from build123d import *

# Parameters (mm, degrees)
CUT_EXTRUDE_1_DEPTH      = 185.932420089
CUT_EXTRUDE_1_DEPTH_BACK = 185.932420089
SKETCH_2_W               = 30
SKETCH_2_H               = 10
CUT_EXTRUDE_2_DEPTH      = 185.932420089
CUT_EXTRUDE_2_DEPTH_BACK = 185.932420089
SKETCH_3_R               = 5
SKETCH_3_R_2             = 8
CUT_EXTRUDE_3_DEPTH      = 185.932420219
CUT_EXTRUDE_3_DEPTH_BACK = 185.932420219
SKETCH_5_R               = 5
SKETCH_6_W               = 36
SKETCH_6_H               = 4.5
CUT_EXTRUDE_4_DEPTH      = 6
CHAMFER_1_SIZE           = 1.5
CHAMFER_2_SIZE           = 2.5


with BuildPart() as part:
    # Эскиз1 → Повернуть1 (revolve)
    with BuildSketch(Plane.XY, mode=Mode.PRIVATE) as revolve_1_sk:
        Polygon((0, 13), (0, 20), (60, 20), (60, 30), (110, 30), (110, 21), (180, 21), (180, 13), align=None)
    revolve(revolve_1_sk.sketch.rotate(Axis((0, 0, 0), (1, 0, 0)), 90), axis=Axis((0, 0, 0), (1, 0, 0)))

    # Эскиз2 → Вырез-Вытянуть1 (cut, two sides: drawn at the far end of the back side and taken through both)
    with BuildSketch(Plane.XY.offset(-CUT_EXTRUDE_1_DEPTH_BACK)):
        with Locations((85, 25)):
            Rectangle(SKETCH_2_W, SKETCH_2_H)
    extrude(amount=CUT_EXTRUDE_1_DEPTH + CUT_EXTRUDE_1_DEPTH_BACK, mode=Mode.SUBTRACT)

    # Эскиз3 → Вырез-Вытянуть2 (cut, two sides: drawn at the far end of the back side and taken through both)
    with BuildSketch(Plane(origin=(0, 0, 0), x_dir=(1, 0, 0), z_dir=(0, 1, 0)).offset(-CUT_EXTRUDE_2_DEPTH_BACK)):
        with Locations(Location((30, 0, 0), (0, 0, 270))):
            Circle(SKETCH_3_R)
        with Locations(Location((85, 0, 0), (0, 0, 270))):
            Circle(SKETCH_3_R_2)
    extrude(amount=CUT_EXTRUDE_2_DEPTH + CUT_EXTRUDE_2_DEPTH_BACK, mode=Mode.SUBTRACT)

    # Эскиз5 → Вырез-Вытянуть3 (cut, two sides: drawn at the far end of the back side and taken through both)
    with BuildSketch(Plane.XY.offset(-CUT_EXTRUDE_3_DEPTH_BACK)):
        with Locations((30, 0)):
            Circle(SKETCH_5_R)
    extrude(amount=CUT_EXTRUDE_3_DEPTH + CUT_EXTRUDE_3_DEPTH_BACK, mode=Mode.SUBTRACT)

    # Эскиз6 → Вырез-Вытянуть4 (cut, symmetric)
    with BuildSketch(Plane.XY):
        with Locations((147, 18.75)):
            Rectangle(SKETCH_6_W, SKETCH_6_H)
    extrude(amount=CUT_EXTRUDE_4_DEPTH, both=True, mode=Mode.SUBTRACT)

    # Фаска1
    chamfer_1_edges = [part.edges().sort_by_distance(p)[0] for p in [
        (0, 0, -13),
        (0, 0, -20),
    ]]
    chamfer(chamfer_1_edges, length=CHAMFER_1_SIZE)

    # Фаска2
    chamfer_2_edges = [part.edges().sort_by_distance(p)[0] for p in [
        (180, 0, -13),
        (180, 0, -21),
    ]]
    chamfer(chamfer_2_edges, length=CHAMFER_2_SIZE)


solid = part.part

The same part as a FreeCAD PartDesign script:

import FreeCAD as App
import Part
import Sketcher


def edges_at(feature, points):
    """Names of the edges that pass closest to the given points."""
    edges = feature.Shape.Edges
    near = lambda p: min(range(len(edges)), key=lambda i: edges[i].distToShape(Part.Vertex(*p))[0])
    return sorted({f"Edge{near(p) + 1}" for p in points})


def add_polygon(sketch, points):
    """Adds a closed chain of lines whose ends are joined by coincident constraints."""
    first, n = sketch.GeometryCount, len(points)
    for a, b in zip(points, points[1:] + points[:1]):
        sketch.addGeometry(Part.LineSegment(App.Vector(*a, 0), App.Vector(*b, 0)), False)
    for i in range(n):
        sketch.addConstraint(Sketcher.Constraint("Coincident", first + i, 2, first + (i + 1) % n, 1))

doc = App.newDocument("Part")
body = doc.addObject("PartDesign::Body", "Body")

sketch1 = doc.addObject("Sketcher::SketchObject", "Sketch")
body.addObject(sketch1)
sketch1.AttachmentSupport = (doc.XY_Plane, [""])
sketch1.MapMode = "FlatFace"
add_polygon(sketch1, [(0, 20), (0, 13), (180, 13), (180, 21), (110, 21), (110, 30), (60, 30), (60, 20)])
sketch1.addConstraint([
    Sketcher.Constraint("Vertical", 0),
    Sketcher.Constraint("Horizontal", 1),
    Sketcher.Constraint("Vertical", 2),
    Sketcher.Constraint("Horizontal", 3),
    Sketcher.Constraint("Vertical", 4),
    Sketcher.Constraint("Horizontal", 5),
    Sketcher.Constraint("Vertical", 6),
    Sketcher.Constraint("Horizontal", 7),
    Sketcher.Constraint("PointOnObject", 0, 2, -2),
    Sketcher.Constraint("DistanceX", 1, 1, 1, 2, 180.0),
    Sketcher.Constraint("DistanceX", 3, 2, 3, 1, 70.0),
    Sketcher.Constraint("DistanceX", 5, 2, 5, 1, 50.0),
    Sketcher.Constraint("DistanceY", 0, 2, 0, 1, 7.0),
    Sketcher.Constraint("DistanceY", 2, 1, 2, 2, 8.0),
    Sketcher.Constraint("DistanceY", 4, 1, 4, 2, 9.0),
    Sketcher.Constraint("DistanceY", -1, 1, 0, 2, 13.0),
])
revolution = doc.addObject("PartDesign::Revolution", "Revolution")
body.addObject(revolution)
revolution.Profile = sketch1
revolution.ReferenceAxis = (sketch1, ["H_Axis"])
revolution.Angle = 360

sketch2 = doc.addObject("Sketcher::SketchObject", "Sketch001")
body.addObject(sketch2)
sketch2.AttachmentSupport = (doc.XY_Plane, [""])
sketch2.MapMode = "FlatFace"
add_polygon(sketch2, [(70, 30), (70, 20), (100, 20), (100, 30)])
sketch2.addConstraint([
    Sketcher.Constraint("Vertical", 0),
    Sketcher.Constraint("Horizontal", 1),
    Sketcher.Constraint("Vertical", 2),
    Sketcher.Constraint("Horizontal", 3),
    Sketcher.Constraint("DistanceX", 1, 1, 1, 2, 30.0),
    Sketcher.Constraint("DistanceY", 0, 2, 0, 1, 10.0),
    Sketcher.Constraint("DistanceX", -1, 1, 0, 2, 70.0),
    Sketcher.Constraint("DistanceY", -1, 1, 0, 2, 20.0),
])
pocket1 = doc.addObject("PartDesign::Pocket", "Pocket")
body.addObject(pocket1)
pocket1.Profile = sketch2
pocket1.Type = "ThroughAll"
pocket1.Midplane = True

sketch3 = doc.addObject("Sketcher::SketchObject", "Sketch002")
body.addObject(sketch3)
sketch3.AttachmentSupport = (doc.XZ_Plane, [""])
sketch3.MapMode = "FlatFace"
sketch3.addGeometry([
    Part.Circle(App.Vector(30, 0, 0), App.Vector(0, 0, 1), 5),
    Part.Circle(App.Vector(85, 0, 0), App.Vector(0, 0, 1), 8),
], False)
sketch3.addConstraint([
    Sketcher.Constraint("PointOnObject", 0, 3, -1),
    Sketcher.Constraint("PointOnObject", 1, 3, -1),
    Sketcher.Constraint("Diameter", 0, 10.0),
    Sketcher.Constraint("Diameter", 1, 16.0),
    Sketcher.Constraint("DistanceX", -1, 1, 0, 3, 30.0),
    Sketcher.Constraint("DistanceX", -1, 1, 1, 3, 85.0),
])
pocket2 = doc.addObject("PartDesign::Pocket", "Pocket001")
body.addObject(pocket2)
pocket2.Profile = sketch3
pocket2.Type = "ThroughAll"
pocket2.Midplane = True

sketch4 = doc.addObject("Sketcher::SketchObject", "Sketch003")
body.addObject(sketch4)
sketch4.AttachmentSupport = (doc.XY_Plane, [""])
sketch4.MapMode = "FlatFace"
sketch4.addGeometry(Part.Circle(App.Vector(30, 0, 0), App.Vector(0, 0, 1), 5), False)
sketch4.addConstraint([
    Sketcher.Constraint("PointOnObject", 0, 3, -1),
    Sketcher.Constraint("Diameter", 0, 10.0),
    Sketcher.Constraint("DistanceX", -1, 1, 0, 3, 30.0),
])
pocket3 = doc.addObject("PartDesign::Pocket", "Pocket002")
body.addObject(pocket3)
pocket3.Profile = sketch4
pocket3.Type = "ThroughAll"
pocket3.Midplane = True

sketch5 = doc.addObject("Sketcher::SketchObject", "Sketch004")
body.addObject(sketch5)
sketch5.AttachmentSupport = (doc.XY_Plane, [""])
sketch5.MapMode = "FlatFace"
add_polygon(sketch5, [(129, 21), (129, 16.5), (165, 16.5), (165, 21)])
sketch5.addConstraint([
    Sketcher.Constraint("Vertical", 0),
    Sketcher.Constraint("Horizontal", 1),
    Sketcher.Constraint("Vertical", 2),
    Sketcher.Constraint("Horizontal", 3),
    Sketcher.Constraint("DistanceX", 1, 1, 1, 2, 36.0),
    Sketcher.Constraint("DistanceY", 0, 2, 0, 1, 4.5),
    Sketcher.Constraint("DistanceX", -1, 1, 0, 2, 129.0),
    Sketcher.Constraint("DistanceY", -1, 1, 2, 2, 21.0),
])
pocket4 = doc.addObject("PartDesign::Pocket", "Pocket003")
body.addObject(pocket4)
pocket4.Profile = sketch5
pocket4.Length = 12
pocket4.Midplane = True
doc.recompute()

chamfer = doc.addObject("PartDesign::Chamfer", "Chamfer")
body.addObject(chamfer)
chamfer.Base = (pocket4, edges_at(pocket4, [(0, 0, -13), (0, 0, -20)]))
chamfer.Size = 1.5
doc.recompute()

chamfer2 = doc.addObject("PartDesign::Chamfer", "Chamfer001")
body.addObject(chamfer2)
chamfer2.Base = (chamfer, edges_at(chamfer, [(180, 0, -13), (180, 0, -21)]))
chamfer2.Size = 2.5

doc.recompute()
